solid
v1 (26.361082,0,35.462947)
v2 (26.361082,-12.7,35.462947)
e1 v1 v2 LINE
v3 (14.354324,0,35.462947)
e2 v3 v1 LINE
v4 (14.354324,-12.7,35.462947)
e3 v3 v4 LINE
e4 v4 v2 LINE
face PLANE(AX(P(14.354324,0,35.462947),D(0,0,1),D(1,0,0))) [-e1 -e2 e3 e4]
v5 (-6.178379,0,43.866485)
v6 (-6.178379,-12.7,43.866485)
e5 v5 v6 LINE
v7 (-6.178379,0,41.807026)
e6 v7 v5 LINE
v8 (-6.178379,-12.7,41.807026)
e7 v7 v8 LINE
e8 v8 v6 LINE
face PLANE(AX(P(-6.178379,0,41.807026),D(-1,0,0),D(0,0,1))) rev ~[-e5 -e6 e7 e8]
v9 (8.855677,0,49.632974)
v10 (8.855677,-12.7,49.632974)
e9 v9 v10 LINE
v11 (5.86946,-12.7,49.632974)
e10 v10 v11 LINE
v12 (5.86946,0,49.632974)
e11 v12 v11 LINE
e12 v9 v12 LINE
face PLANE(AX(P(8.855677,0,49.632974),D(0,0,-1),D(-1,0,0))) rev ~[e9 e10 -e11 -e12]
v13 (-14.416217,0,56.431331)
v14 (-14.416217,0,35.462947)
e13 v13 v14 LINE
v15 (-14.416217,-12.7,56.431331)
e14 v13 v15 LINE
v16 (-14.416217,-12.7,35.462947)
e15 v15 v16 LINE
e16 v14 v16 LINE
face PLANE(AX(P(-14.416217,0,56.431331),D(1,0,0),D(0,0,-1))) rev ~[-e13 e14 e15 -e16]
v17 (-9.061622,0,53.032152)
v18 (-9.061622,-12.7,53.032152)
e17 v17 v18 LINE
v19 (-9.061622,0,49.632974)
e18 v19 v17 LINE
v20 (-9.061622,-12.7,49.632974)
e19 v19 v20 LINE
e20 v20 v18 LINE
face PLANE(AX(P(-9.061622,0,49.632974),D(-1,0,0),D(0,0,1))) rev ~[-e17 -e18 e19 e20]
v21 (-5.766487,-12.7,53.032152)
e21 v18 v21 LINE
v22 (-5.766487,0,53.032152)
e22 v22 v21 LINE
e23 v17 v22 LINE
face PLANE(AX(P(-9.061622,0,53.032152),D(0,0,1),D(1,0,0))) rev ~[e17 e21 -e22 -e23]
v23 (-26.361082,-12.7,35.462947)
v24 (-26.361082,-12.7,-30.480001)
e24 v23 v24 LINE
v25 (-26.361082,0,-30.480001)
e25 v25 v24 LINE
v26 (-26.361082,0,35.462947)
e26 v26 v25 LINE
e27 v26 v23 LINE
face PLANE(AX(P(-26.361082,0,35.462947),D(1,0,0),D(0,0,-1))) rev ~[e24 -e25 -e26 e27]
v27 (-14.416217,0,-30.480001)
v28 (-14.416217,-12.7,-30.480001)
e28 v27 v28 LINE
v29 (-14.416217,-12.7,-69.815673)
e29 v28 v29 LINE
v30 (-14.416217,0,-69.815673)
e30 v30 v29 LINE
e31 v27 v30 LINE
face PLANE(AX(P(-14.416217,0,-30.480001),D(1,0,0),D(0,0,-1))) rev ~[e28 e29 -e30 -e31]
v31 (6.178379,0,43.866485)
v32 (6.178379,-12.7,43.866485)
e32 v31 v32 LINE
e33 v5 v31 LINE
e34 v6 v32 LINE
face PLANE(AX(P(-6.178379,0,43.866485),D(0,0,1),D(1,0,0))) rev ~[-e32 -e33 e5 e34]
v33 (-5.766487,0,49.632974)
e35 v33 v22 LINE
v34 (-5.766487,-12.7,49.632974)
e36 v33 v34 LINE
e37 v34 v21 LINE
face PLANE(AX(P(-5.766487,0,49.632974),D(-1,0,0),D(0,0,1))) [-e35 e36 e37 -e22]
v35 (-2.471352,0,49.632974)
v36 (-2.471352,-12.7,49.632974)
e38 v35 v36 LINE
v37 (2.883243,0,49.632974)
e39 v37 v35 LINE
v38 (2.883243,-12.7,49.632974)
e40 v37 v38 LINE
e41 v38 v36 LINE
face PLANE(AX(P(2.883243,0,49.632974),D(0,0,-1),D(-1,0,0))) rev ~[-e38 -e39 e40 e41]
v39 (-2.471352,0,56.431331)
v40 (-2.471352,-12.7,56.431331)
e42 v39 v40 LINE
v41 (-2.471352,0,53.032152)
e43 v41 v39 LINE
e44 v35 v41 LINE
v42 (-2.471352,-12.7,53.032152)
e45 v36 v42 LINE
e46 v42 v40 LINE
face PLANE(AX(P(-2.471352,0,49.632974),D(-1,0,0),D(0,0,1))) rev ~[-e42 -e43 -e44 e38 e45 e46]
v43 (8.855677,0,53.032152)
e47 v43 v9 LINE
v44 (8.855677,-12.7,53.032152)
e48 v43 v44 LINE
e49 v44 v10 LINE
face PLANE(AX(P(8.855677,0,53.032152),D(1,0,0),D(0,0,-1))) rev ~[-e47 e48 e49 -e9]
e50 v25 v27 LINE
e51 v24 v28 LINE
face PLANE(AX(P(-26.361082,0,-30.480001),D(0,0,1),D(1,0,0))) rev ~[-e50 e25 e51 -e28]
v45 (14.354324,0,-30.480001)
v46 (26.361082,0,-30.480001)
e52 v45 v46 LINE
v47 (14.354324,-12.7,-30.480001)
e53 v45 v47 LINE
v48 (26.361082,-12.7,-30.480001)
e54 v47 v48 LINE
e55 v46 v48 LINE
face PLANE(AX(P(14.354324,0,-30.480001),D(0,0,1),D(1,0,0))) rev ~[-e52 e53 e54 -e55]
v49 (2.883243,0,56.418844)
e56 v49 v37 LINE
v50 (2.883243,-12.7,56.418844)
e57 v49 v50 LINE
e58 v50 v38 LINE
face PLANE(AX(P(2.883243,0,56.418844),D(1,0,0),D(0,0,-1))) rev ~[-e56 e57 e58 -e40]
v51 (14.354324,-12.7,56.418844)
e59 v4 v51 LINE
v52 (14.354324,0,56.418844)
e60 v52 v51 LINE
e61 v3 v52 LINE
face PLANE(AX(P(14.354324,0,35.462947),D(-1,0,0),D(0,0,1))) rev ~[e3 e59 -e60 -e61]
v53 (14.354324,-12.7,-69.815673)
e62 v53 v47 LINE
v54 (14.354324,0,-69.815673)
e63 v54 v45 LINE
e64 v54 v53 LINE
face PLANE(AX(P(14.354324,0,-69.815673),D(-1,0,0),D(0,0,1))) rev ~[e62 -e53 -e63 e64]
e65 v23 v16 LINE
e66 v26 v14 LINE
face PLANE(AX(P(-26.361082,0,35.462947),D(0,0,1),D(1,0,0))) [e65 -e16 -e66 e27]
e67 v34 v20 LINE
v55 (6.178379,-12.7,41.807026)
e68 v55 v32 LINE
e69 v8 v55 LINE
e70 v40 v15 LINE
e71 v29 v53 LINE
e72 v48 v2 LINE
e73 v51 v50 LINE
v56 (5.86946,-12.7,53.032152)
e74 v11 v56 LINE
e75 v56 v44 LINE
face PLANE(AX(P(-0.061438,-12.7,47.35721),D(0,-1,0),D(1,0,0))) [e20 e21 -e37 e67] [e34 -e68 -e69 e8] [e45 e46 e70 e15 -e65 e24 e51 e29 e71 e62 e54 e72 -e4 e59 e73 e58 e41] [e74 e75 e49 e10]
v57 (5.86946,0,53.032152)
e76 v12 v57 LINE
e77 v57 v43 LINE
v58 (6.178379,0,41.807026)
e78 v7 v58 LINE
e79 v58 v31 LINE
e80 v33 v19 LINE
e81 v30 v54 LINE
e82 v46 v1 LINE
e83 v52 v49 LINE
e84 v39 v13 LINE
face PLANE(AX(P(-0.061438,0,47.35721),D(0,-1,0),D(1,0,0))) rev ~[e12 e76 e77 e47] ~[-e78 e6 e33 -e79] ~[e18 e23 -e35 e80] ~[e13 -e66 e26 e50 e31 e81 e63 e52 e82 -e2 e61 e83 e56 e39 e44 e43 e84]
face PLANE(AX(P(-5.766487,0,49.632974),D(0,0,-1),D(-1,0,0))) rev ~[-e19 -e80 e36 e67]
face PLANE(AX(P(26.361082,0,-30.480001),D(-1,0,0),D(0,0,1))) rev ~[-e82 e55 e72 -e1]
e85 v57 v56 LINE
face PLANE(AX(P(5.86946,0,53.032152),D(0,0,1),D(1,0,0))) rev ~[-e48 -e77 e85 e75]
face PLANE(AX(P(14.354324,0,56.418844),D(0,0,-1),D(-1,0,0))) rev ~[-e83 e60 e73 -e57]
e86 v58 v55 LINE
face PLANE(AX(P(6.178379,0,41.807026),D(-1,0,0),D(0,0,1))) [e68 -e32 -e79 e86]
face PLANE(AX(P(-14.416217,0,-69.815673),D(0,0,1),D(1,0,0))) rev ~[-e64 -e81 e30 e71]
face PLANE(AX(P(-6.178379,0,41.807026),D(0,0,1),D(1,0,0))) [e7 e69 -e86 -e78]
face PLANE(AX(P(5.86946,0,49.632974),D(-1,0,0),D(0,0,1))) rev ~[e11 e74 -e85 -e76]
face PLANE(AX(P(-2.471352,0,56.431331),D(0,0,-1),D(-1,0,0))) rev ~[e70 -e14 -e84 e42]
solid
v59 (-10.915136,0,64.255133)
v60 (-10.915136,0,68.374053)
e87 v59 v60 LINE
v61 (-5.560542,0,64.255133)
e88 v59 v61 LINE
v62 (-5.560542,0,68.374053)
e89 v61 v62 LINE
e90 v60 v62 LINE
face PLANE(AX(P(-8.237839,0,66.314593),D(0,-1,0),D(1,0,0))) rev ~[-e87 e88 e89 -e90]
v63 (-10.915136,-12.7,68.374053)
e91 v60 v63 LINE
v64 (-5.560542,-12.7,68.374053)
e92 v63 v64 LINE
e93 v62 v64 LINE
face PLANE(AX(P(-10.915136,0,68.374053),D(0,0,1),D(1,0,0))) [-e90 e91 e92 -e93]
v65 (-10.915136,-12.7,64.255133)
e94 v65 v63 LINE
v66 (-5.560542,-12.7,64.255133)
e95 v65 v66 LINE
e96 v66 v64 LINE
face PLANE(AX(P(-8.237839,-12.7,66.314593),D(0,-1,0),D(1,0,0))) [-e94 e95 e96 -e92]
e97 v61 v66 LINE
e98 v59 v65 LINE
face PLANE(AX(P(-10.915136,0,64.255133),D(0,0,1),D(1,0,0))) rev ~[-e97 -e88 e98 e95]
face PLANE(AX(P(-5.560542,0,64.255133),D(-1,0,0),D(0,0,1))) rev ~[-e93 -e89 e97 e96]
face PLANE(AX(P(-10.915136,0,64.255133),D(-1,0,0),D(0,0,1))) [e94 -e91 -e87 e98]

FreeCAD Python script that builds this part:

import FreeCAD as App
import Part
import Sketcher
from FreeCAD import Vector
Q = App.Units.Quantity


def add_polygon(sketch, points):
    """Adds a closed chain of lines whose ends are joined by coincident constraints."""
    first, n = sketch.GeometryCount, len(points)
    for a, b in zip(points, points[1:] + points[:1]):
        sketch.addGeometry(Part.LineSegment(App.Vector(*a, 0), App.Vector(*b, 0)), False)
    for i in range(n):
        sketch.addConstraint(Sketcher.Constraint("Coincident", first + i, 2, first + (i + 1) % n, 1))

doc = App.newDocument("Part")
params = doc.addObject("Spreadsheet::Sheet", "Params")
for row, (alias, value) in enumerate([
    ("pad1_length", "0.5 in"),
    ("pad2_length", "0.5 in"),
], start=1):
    params.set(f"A{row}", alias)
    params.set(f"B{row}", "=" + value)
    params.setAlias(f"B{row}", alias)

body = doc.addObject("PartDesign::Body", "Body")

sketch1 = body.newObject("Sketcher::SketchObject", "Sketch")
sketch1.AttachmentSupport = (doc.getObject("XZ_Plane"), [""])
sketch1.MapMode = "FlatFace"
add_polygon(sketch1, [(-14.4, 56.4), (-14.4, 35.5), (-26.4, 35.5), (-26.4, -30.5), (-14.4, -30.5), (-14.4, -69.8), (14.4, -69.8), (14.4, -30.5), (26.4, -30.5), (26.4, 35.5), (14.4, 35.5), (14.4, 56.4), (2.9, 56.4), (2.9, 49.6), (-2.5, 49.6), (-2.5, 53), (-2.5, 56.4)])
add_polygon(sketch1, [(5.9, 53), (8.9, 53), (8.9, 49.6), (5.9, 49.6)])
add_polygon(sketch1, [(-5.8, 49.6), (-9.1, 49.6), (-9.1, 53), (-5.8, 53)])
add_polygon(sketch1, [(6.2, 41.8), (-6.2, 41.8), (-6.2, 43.9), (6.2, 43.9)])
sketch1.addConstraint(Sketcher.Constraint("Vertical", 0))
sketch1.addConstraint(Sketcher.Constraint("Horizontal", 1))
sketch1.addConstraint(Sketcher.Constraint("Vertical", 2))
sketch1.addConstraint(Sketcher.Constraint("Horizontal", 3))
sketch1.addConstraint(Sketcher.Constraint("Vertical", 4))
sketch1.addConstraint(Sketcher.Constraint("Horizontal", 5))
sketch1.addConstraint(Sketcher.Constraint("Vertical", 6))
sketch1.addConstraint(Sketcher.Constraint("Horizontal", 7))
sketch1.addConstraint(Sketcher.Constraint("Vertical", 8))
sketch1.addConstraint(Sketcher.Constraint("Horizontal", 9))
sketch1.addConstraint(Sketcher.Constraint("Vertical", 10))
sketch1.addConstraint(Sketcher.Constraint("Horizontal", 11))
sketch1.addConstraint(Sketcher.Constraint("Vertical", 12))
sketch1.addConstraint(Sketcher.Constraint("Horizontal", 13))
sketch1.addConstraint(Sketcher.Constraint("Vertical", 14))
sketch1.addConstraint(Sketcher.Constraint("Vertical", 15))
sketch1.addConstraint(Sketcher.Constraint("Horizontal", 16))
sketch1.addConstraint(Sketcher.Constraint("Horizontal", 17))
sketch1.addConstraint(Sketcher.Constraint("Vertical", 18))
sketch1.addConstraint(Sketcher.Constraint("Horizontal", 19))
sketch1.addConstraint(Sketcher.Constraint("Vertical", 20))
sketch1.addConstraint(Sketcher.Constraint("Horizontal", 21))
sketch1.addConstraint(Sketcher.Constraint("Vertical", 22))
sketch1.addConstraint(Sketcher.Constraint("Horizontal", 23))
sketch1.addConstraint(Sketcher.Constraint("Vertical", 24))
sketch1.addConstraint(Sketcher.Constraint("Horizontal", 25))
sketch1.addConstraint(Sketcher.Constraint("Vertical", 26))
sketch1.addConstraint(Sketcher.Constraint("Horizontal", 27))
sketch1.addConstraint(Sketcher.Constraint("Vertical", 28))
sketch1.addConstraint(Sketcher.Constraint("Symmetric", 2, 2, 7, 2, -2))
sketch1.addConstraint(Sketcher.Constraint("Horizontal", 1, 2, 8, 2))
sketch1.addConstraint(Sketcher.Constraint("Horizontal", 14, 2, 17, 2))
sketch1.addConstraint(Sketcher.Constraint("Horizontal", 13, 2, 18, 2))
sketch1.addConstraint(Sketcher.Constraint("Horizontal", 19, 2, 21, 2))
sketch1.addConstraint(Sketcher.Constraint("Horizontal", 20, 2, 22, 2))
sketch1.addConstraint(Sketcher.Constraint("Vertical", 0, 2, 3, 2))
sketch1.addConstraint(Sketcher.Constraint("Vertical", 6, 2, 9, 2))
sketch1.addConstraint(Sketcher.Constraint("Equal", 3, 16))
sketch1.addConstraint(Sketcher.Constraint("Equal", 14, 15))
sketch1.addConstraint(Sketcher.Constraint("DistanceY", 2, 2, -1, 1, Q("1.2 in")))
sketch1.addConstraint(Sketcher.Constraint("DistanceX", 5, 1, 5, 2, 28.770541))
sketch1.addConstraint(Sketcher.Constraint("DistanceX", 11, 2, 11, 1, 11.471081))
sketch1.addConstraint(Sketcher.Constraint("DistanceY", 2, 2, 2, 1, 65.942948))
sketch1.addConstraint(Sketcher.Constraint("DistanceY", 4, 2, 4, 1, 39.335672))
sketch1.addConstraint(Sketcher.Constraint("DistanceY", 12, 2, 12, 1, 6.78587))
sketch1.addConstraint(Sketcher.Constraint("DistanceY", 14, 1, 14, 2, 3.399178))
sketch1.addConstraint(Sketcher.Constraint("DistanceY", 26, 1, 26, 2, 2.05946))
sketch1.addConstraint(Sketcher.Constraint("DistanceX", 3, 2, 7, 2, 40.777299))
sketch1.addConstraint(Sketcher.Constraint("DistanceX", 27, 2, 18, 2, 2.677299))
sketch1.addConstraint(Sketcher.Constraint("DistanceX", 1, 2, 1, 1, 11.944865))
sketch1.addConstraint(Sketcher.Constraint("DistanceX", 17, 1, 17, 2, 2.986217))
sketch1.addConstraint(Sketcher.Constraint("DistanceX", 21, 2, 21, 1, 3.295135))
sketch1.addConstraint(Sketcher.Constraint("DistanceX", 25, 2, 25, 1, 12.356757))
sketch1.addConstraint(Sketcher.Constraint("DistanceY", 0, 2, 0, 1, 20.968384))
sketch1.addConstraint(Sketcher.Constraint("DistanceX", -1, 1, 19, 2, 5.86946))
sketch1.addConstraint(Sketcher.Constraint("DistanceX", 21, 2, 13, 2, 6.590271))
sketch1.addConstraint(Sketcher.Constraint("DistanceY", 25, 2, 24, 2, 7.825948))
pad1 = body.newObject("PartDesign::Pad", "Pad")
pad1.Profile = sketch1
pad1.setExpression("Length", "Params.pad1_length")
body2 = doc.addObject("PartDesign::Body", "Body001")

sketch2 = body2.newObject("Sketcher::SketchObject", "Sketch001")
sketch2.AttachmentSupport = (doc.getObject("XZ_Plane001"), [""])
sketch2.MapMode = "FlatFace"
add_polygon(sketch2, [(-10.9, 68.4), (-10.9, 64.3), (-5.6, 64.3), (-5.6, 68.4)])
sketch2.addConstraint(Sketcher.Constraint("Vertical", 0))
sketch2.addConstraint(Sketcher.Constraint("Horizontal", 1))
sketch2.addConstraint(Sketcher.Constraint("Vertical", 2))
sketch2.addConstraint(Sketcher.Constraint("Horizontal", 3))
sketch2.addConstraint(Sketcher.Constraint("DistanceY", 0, 2, 0, 1, 4.118919))
sketch2.addConstraint(Sketcher.Constraint("DistanceX", 1, 1, 1, 2, 5.354594))
sketch2.addConstraint(Sketcher.Constraint("DistanceX", 1, 2, -1, 1, 5.560542))
sketch2.addConstraint(Sketcher.Constraint("DistanceY", -1, 1, 0, 2, 64.255133))
pad2 = body2.newObject("PartDesign::Pad", "Pad001")
pad2.Profile = sketch2
pad2.setExpression("Length", "Params.pad2_length")

doc.recompute()
